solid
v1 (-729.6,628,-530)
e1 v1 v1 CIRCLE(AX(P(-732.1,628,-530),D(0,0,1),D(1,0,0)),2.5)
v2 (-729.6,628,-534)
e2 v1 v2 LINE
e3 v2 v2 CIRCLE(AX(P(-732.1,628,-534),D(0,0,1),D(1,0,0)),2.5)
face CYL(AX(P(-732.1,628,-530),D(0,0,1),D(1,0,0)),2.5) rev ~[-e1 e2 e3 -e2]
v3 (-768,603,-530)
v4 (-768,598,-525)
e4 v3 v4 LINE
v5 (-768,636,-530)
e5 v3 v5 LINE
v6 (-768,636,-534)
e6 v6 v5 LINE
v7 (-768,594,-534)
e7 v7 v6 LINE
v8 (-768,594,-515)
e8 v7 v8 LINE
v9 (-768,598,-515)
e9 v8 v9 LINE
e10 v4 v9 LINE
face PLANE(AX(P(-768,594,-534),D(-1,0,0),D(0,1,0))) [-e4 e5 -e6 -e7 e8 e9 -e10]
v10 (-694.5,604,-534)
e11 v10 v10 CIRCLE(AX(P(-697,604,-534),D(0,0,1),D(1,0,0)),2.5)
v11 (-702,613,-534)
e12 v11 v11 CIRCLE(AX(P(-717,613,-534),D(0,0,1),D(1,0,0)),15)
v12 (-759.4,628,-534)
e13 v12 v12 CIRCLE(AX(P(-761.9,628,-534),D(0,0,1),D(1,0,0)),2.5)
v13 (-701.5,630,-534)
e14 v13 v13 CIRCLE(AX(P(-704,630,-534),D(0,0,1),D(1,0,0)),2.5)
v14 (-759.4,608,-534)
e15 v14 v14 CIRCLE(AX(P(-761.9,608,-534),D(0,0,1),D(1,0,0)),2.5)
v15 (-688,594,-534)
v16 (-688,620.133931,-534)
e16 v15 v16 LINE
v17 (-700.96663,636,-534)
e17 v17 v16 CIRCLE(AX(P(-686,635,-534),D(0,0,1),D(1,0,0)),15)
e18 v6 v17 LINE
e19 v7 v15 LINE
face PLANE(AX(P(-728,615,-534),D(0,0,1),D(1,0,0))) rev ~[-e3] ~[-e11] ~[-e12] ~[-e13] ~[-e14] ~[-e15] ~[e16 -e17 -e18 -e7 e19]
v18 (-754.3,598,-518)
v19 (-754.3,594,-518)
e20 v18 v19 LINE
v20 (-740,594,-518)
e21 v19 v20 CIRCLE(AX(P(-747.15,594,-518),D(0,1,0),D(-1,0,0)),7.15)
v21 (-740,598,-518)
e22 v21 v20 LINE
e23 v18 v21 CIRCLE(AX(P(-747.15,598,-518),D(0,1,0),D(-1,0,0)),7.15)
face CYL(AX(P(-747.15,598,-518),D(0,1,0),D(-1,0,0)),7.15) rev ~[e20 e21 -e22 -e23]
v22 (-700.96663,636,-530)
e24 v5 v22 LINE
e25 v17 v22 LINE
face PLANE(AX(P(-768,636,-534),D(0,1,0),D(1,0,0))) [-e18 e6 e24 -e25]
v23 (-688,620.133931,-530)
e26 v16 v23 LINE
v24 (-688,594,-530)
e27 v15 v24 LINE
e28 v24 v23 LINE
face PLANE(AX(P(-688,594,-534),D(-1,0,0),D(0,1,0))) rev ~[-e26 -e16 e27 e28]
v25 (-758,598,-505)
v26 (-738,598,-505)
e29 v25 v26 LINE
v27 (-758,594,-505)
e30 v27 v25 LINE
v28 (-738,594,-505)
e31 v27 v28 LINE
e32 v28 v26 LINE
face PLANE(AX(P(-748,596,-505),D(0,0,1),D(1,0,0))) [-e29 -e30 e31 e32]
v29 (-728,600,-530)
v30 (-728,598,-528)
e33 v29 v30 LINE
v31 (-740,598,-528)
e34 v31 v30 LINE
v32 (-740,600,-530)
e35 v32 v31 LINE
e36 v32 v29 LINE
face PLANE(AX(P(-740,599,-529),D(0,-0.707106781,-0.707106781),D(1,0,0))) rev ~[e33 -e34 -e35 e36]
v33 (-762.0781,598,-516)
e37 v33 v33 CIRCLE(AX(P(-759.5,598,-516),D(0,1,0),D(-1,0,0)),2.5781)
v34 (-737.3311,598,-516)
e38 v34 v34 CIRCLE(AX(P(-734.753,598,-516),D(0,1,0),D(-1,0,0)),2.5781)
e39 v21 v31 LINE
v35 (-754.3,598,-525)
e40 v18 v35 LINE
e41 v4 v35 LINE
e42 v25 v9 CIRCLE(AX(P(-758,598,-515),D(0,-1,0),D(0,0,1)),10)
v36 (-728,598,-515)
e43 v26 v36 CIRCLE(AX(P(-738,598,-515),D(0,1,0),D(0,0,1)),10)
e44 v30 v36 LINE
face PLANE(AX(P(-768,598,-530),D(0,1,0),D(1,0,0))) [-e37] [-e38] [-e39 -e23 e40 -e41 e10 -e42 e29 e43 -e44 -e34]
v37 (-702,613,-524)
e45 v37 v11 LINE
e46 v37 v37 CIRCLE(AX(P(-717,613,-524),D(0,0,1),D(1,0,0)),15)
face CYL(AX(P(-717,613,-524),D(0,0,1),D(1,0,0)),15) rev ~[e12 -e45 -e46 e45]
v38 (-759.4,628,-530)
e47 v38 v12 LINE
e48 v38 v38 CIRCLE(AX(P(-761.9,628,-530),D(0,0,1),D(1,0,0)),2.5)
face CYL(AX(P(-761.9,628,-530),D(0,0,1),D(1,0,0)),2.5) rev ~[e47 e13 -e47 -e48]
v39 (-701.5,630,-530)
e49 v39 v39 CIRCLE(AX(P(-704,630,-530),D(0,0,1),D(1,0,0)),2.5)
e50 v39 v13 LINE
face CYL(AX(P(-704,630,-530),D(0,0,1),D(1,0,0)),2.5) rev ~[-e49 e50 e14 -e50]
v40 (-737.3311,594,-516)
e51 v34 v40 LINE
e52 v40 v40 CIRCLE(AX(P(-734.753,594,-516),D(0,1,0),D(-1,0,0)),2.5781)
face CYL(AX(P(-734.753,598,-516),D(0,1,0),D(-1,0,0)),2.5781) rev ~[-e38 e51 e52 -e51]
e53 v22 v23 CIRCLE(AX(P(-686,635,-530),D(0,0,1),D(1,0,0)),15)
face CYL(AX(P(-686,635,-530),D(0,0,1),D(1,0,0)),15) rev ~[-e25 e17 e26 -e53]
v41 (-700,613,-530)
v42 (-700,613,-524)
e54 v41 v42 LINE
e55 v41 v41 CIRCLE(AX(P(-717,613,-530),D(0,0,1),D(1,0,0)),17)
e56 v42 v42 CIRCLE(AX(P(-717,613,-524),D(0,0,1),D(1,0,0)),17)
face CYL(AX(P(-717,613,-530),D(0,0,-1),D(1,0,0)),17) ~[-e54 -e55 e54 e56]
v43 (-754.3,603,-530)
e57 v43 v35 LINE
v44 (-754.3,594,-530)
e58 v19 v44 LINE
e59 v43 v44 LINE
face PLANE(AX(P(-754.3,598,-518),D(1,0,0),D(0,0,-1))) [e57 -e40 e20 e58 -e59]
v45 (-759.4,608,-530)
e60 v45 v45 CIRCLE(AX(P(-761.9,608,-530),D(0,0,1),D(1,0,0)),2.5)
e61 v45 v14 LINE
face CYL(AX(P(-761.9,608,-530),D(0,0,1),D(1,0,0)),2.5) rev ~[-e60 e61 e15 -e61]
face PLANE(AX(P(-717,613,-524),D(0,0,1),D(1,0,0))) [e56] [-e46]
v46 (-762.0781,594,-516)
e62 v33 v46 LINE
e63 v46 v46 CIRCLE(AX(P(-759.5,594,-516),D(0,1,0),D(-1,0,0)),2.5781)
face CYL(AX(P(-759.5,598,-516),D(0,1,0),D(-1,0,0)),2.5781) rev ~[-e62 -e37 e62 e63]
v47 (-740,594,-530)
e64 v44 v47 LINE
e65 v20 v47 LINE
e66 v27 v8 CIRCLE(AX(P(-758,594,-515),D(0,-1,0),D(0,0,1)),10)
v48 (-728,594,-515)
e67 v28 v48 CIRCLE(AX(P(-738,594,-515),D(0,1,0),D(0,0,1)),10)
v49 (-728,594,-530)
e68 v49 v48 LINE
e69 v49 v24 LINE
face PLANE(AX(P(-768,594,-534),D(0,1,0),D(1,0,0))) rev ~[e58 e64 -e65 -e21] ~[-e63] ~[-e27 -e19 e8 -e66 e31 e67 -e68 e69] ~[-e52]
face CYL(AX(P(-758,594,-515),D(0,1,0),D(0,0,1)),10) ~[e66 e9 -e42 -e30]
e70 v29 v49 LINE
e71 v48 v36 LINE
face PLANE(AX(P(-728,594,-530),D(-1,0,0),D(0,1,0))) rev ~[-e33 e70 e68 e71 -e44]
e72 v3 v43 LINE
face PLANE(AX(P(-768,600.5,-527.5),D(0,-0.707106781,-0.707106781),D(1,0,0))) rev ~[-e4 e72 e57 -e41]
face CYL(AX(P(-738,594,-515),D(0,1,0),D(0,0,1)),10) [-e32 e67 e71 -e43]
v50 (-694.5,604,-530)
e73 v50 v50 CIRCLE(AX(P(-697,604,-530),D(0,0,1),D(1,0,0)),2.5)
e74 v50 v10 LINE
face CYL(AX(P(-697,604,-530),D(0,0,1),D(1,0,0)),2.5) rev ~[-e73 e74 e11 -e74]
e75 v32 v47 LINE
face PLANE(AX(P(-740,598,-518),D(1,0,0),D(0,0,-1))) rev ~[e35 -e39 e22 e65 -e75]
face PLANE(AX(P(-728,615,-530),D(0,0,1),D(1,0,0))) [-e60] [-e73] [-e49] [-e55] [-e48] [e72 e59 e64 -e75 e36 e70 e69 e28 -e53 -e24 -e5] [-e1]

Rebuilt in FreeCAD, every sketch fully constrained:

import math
import FreeCAD as App
import Part
import Sketcher

V = App.Vector
Q = App.Units.Quantity


def edges_at(feature, points):
    """Names of the edges that pass closest to the given points."""
    edges = feature.Shape.Edges
    near = lambda p: min(range(len(edges)), key=lambda i: edges[i].distToShape(Part.Vertex(*p))[0])
    return sorted({f"Edge{near(p) + 1}" for p in points})

doc = App.newDocument("Part")
body = doc.addObject("PartDesign::Body", "Body")

# Sketch on XY plane
sketch1 = body.newObject("Sketcher::SketchObject", "Sketch")
sketch1.AttachmentSupport = (doc.getObject("XY_Plane"), [""])
sketch1.MapMode = "FlatFace"
sketch1.AttachmentOffset = App.Placement(V(0, 0, -534), App.Rotation())
sketch1.addGeometry([
    Part.LineSegment(V(-768, 636, 0), V(-768, 594, 0)),
    Part.LineSegment(V(-768, 594, 0), V(-688, 594, 0)),
    Part.LineSegment(V(-688, 594, 0), V(-688, 636, 0)),
    Part.LineSegment(V(-688, 636, 0), V(-768, 636, 0)),
], False)
sketch1.addConstraint([
    Sketcher.Constraint("Coincident", 0, 2, 1, 1),
    Sketcher.Constraint("Coincident", 1, 2, 2, 1),
    Sketcher.Constraint("Coincident", 2, 2, 3, 1),
    Sketcher.Constraint("Coincident", 3, 2, 0, 1),
    Sketcher.Constraint("Vertical", 0),
    Sketcher.Constraint("Horizontal", 1),
    Sketcher.Constraint("Vertical", 2),
    Sketcher.Constraint("Horizontal", 3),
    Sketcher.Constraint("DistanceX", 1, 1, 1, 2, Q("80 mm")),
    Sketcher.Constraint("DistanceY", 0, 2, 0, 1, Q("42 mm")),
    Sketcher.Constraint("DistanceX", 0, 2, -1, 1, Q("768 mm")),
    Sketcher.Constraint("DistanceY", -1, 1, 0, 2, Q("594 mm")),
])
pad1 = body.newObject("PartDesign::Pad", "Pad")
pad1.Profile = sketch1
pad1.Length = 4

# Sketch on XY plane
sketch2 = body.newObject("Sketcher::SketchObject", "Sketch001")
sketch2.AttachmentSupport = (doc.getObject("XY_Plane"), [""])
sketch2.MapMode = "FlatFace"
sketch2.AttachmentOffset = App.Placement(V(0, 0, -530), App.Rotation())
sketch2.addGeometry(Part.Circle(V(-686, 635, 0), V(0, 0, 1), 15), False)
sketch2.addConstraint([
    Sketcher.Constraint("Diameter", 0, Q("30 mm")),
    Sketcher.Constraint("DistanceX", 0, 3, -1, 1, Q("686 mm")),
    Sketcher.Constraint("DistanceY", -1, 1, 0, 3, Q("635 mm")),
])
pocket1 = body.newObject("PartDesign::Pocket", "Pocket")
pocket1.Profile = sketch2
pocket1.Type = "ThroughAll"

# Sketch on XY plane
sketch3 = body.newObject("Sketcher::SketchObject", "Sketch002")
sketch3.AttachmentSupport = (doc.getObject("XY_Plane"), [""])
sketch3.MapMode = "FlatFace"
sketch3.AttachmentOffset = App.Placement(V(0, 0, -530), App.Rotation())
sketch3.addGeometry(Part.Circle(V(-717, 613, 0), V(0, 0, 1), 17), False)
sketch3.addConstraint([
    Sketcher.Constraint("Diameter", 0, Q("34 mm")),
    Sketcher.Constraint("DistanceX", 0, 3, -1, 1, Q("717 mm")),
    Sketcher.Constraint("DistanceY", -1, 1, 0, 3, Q("613 mm")),
])
pad2 = body.newObject("PartDesign::Pad", "Pad001")
pad2.Profile = sketch3
pad2.Length = 6

# Sketch on XY plane
sketch4 = body.newObject("Sketcher::SketchObject", "Sketch003")
sketch4.AttachmentSupport = (doc.getObject("XY_Plane"), [""])
sketch4.MapMode = "FlatFace"
sketch4.AttachmentOffset = App.Placement(V(0, 0, -524), App.Rotation())
sketch4.addGeometry(Part.Circle(V(-717, 613, 0), V(0, 0, 1), 15), False)
sketch4.addConstraint([
    Sketcher.Constraint("Diameter", 0, Q("30 mm")),
    Sketcher.Constraint("DistanceX", 0, 3, -1, 1, Q("717 mm")),
    Sketcher.Constraint("DistanceY", -1, 1, 0, 3, Q("613 mm")),
])
pocket2 = body.newObject("PartDesign::Pocket", "Pocket001")
pocket2.Profile = sketch4
pocket2.Type = "ThroughAll"

# Sketch on XY plane
sketch5 = body.newObject("Sketcher::SketchObject", "Sketch004")
sketch5.AttachmentSupport = (doc.getObject("XY_Plane"), [""])
sketch5.MapMode = "FlatFace"
sketch5.AttachmentOffset = App.Placement(V(0, 0, -530), App.Rotation())
sketch5.addGeometry([
    Part.Circle(V(-761.9, 628, 0), V(0, 0, 1), 2.5),  # 0
    Part.Circle(V(-761.9, 608, 0), V(0, 0, 1), 2.5),  # 1
    Part.Circle(V(-732.1, 628, 0), V(0, 0, 1), 2.5),  # 2
    Part.Circle(V(-704, 630, 0), V(0, 0, 1), 2.5),  # 3
    Part.Circle(V(-697, 604, 0), V(0, 0, 1), 2.5),  # 4
], False)
sketch5.addConstraint([
    Sketcher.Constraint("Equal", 0, 1),
    Sketcher.Constraint("Equal", 1, 2),
    Sketcher.Constraint("Equal", 2, 3),
    Sketcher.Constraint("Equal", 3, 4),
    Sketcher.Constraint("Horizontal", 0, 3, 2, 3),
    Sketcher.Constraint("Vertical", 0, 3, 1, 3),
    Sketcher.Constraint("Diameter", 0, Q("5 mm")),
    Sketcher.Constraint("DistanceY", -1, 1, 0, 3, Q("628 mm")),
    Sketcher.Constraint("DistanceY", -1, 1, 1, 3, Q("608 mm")),
    Sketcher.Constraint("DistanceX", 3, 3, -1, 1, Q("704 mm")),
    Sketcher.Constraint("DistanceY", -1, 1, 3, 3, Q("630 mm")),
    Sketcher.Constraint("DistanceX", 4, 3, -1, 1, Q("697 mm")),
    Sketcher.Constraint("DistanceY", -1, 1, 4, 3, Q("604 mm")),
    Sketcher.Constraint("DistanceX", 0, 3, -1, 1, Q("761.9 mm")),
    Sketcher.Constraint("DistanceX", 2, 3, -1, 1, Q("732.1 mm")),
])
pocket3 = body.newObject("PartDesign::Pocket", "Pocket002")
pocket3.Profile = sketch5
pocket3.Type = "ThroughAll"
body2 = doc.addObject("PartDesign::Body", "Body001")

# Sketch on XY plane
sketch6 = body2.newObject("Sketcher::SketchObject", "Sketch005")
sketch6.AttachmentSupport = (doc.getObject("XY_Plane001"), [""])
sketch6.MapMode = "FlatFace"
sketch6.AttachmentOffset = App.Placement(V(0, 0, -530), App.Rotation())
sketch6.addGeometry([
    Part.LineSegment(V(-768, 598, 0), V(-768, 594, 0)),
    Part.LineSegment(V(-768, 594, 0), V(-728, 594, 0)),
    Part.LineSegment(V(-728, 594, 0), V(-728, 598, 0)),
    Part.LineSegment(V(-728, 598, 0), V(-768, 598, 0)),
], False)
sketch6.addConstraint([
    Sketcher.Constraint("Coincident", 0, 2, 1, 1),
    Sketcher.Constraint("Coincident", 1, 2, 2, 1),
    Sketcher.Constraint("Coincident", 2, 2, 3, 1),
    Sketcher.Constraint("Coincident", 3, 2, 0, 1),
    Sketcher.Constraint("Vertical", 0),
    Sketcher.Constraint("Horizontal", 1),
    Sketcher.Constraint("Vertical", 2),
    Sketcher.Constraint("Horizontal", 3),
    Sketcher.Constraint("DistanceX", 1, 1, 1, 2, Q("40 mm")),
    Sketcher.Constraint("DistanceY", 0, 2, 0, 1, Q("4 mm")),
    Sketcher.Constraint("DistanceX", 0, 2, -1, 1, Q("768 mm")),
    Sketcher.Constraint("DistanceY", -1, 1, 0, 2, Q("594 mm")),
])
pad3 = body2.newObject("PartDesign::Pad", "Pad002")
pad3.Profile = sketch6
pad3.Length = 25

# Sketch on XZ plane
sketch7 = body2.newObject("Sketcher::SketchObject", "Sketch006")
sketch7.AttachmentSupport = (doc.getObject("XZ_Plane001"), [""])
sketch7.MapMode = "FlatFace"
sketch7.AttachmentOffset = App.Placement(V(0, 0, -598), App.Rotation())
sketch7.addGeometry([
    Part.Circle(V(-734.8, -516, 0), V(0, 0, 1), 2.6),  # 0
    Part.Circle(V(-759.5, -516, 0), V(0, 0, 1), 2.6),  # 1
    Part.ArcOfCircle(Part.Circle(V(-747.1, -518, 0), V(0, 0, 1), 7.2), math.radians(0), math.radians(180)),  # 2
    Part.LineSegment(V(-740, -518, 0), V(-740, -530, 0)),  # 3
    Part.LineSegment(V(-740, -530, 0), V(-754.3, -530, 0)),  # 4
    Part.LineSegment(V(-754.3, -530, 0), V(-754.3, -518, 0)),  # 5
], False)
sketch7.addConstraint([
    Sketcher.Constraint("Tangent", 2, 1, 3, 1),
    Sketcher.Constraint("Coincident", 3, 2, 4, 1),
    Sketcher.Constraint("Coincident", 4, 2, 5, 1),
    Sketcher.Constraint("Tangent", 5, 2, 2, 2),
    Sketcher.Constraint("Vertical", 3),
    Sketcher.Constraint("Horizontal", 4),
    Sketcher.Constraint("Vertical", 5),
    Sketcher.Constraint("Equal", 0, 1),
    Sketcher.Constraint("Horizontal", 0, 3, 1, 3),
    Sketcher.Constraint("DistanceY", 3, 2, 3, 1, Q("12 mm")),
    Sketcher.Constraint("Radius", 2, Q("7.15 mm")),
    Sketcher.Constraint("DistanceY", 0, 3, -1, 1, Q("516 mm")),
    Sketcher.Constraint("DistanceY", 2, 3, -1, 1, Q("518 mm")),
    Sketcher.Constraint("DistanceX", 2, 1, -1, 1, Q("740 mm")),
    Sketcher.Constraint("Diameter", 0, Q("5.1562 mm")),
    Sketcher.Constraint("DistanceX", 1, 3, -1, 1, Q("759.5 mm")),
    Sketcher.Constraint("DistanceX", 0, 3, -1, 1, Q("734.753 mm")),
])
pocket4 = body2.newObject("PartDesign::Pocket", "Pocket003")
pocket4.Profile = sketch7
pocket4.Type = "ThroughAll"
pocket4.Reversed = True
doc.recompute()

fillet = body2.newObject("PartDesign::Fillet", "Fillet")
fillet.Base = (pocket4, edges_at(pocket4, [(-728, 596, -505)]))
fillet.Radius = 10
doc.recompute()

fillet2 = body2.newObject("PartDesign::Fillet", "Fillet001")
fillet2.Base = (fillet, edges_at(fillet, [(-768, 596, -505)]))
fillet2.Radius = 10
doc.recompute()

boolean = body2.newObject("PartDesign::Boolean", "Boolean")
boolean.Type = "Fuse"
boolean.addObjects([body])
doc.recompute()

chamfer = body2.newObject("PartDesign::Chamfer", "Chamfer")
chamfer.Base = (boolean, edges_at(boolean, [(-761.15, 598, -530)]))
chamfer.Size = 5
doc.recompute()

chamfer2 = body2.newObject("PartDesign::Chamfer", "Chamfer001")
chamfer2.Base = (chamfer, edges_at(chamfer, [(-734, 598, -530)]))
chamfer2.Size = 2

doc.recompute()
